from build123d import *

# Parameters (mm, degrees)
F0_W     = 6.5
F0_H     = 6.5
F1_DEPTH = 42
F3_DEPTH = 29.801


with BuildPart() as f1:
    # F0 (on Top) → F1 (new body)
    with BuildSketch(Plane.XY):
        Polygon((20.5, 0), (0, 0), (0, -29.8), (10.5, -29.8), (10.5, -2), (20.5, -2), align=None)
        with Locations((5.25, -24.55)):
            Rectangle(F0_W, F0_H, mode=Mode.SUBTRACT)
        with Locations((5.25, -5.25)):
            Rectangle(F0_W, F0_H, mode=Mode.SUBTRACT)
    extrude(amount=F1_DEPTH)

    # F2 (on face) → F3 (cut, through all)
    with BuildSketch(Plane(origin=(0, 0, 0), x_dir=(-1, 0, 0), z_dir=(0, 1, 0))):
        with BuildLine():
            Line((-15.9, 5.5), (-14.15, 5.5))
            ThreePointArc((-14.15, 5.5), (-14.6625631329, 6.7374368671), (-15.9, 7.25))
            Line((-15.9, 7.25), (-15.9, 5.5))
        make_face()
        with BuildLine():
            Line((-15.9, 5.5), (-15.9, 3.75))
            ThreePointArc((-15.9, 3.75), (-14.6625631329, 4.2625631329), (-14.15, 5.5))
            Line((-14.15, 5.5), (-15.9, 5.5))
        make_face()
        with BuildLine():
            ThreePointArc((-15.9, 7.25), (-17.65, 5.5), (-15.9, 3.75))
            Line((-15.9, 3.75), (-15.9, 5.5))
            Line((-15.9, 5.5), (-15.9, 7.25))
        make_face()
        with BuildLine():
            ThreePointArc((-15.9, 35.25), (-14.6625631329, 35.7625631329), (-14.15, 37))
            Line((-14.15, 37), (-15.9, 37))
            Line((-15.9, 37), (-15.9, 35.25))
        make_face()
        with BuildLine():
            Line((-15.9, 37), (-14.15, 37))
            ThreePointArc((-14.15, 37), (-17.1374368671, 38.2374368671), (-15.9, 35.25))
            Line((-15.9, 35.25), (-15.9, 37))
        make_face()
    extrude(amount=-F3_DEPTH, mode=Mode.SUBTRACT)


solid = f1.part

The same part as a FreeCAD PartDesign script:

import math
import FreeCAD as App
import Part
import Sketcher
from FreeCAD import Vector


def add_polygon(sketch, points):
    """Adds a closed chain of lines whose ends are joined by coincident constraints."""
    first, n = sketch.GeometryCount, len(points)
    for a, b in zip(points, points[1:] + points[:1]):
        sketch.addGeometry(Part.LineSegment(App.Vector(*a, 0), App.Vector(*b, 0)), False)
    for i in range(n):
        sketch.addConstraint(Sketcher.Constraint("Coincident", first + i, 2, first + (i + 1) % n, 1))

doc = App.newDocument("Part")
body = doc.addObject("PartDesign::Body", "Body")

# Sketch on XY plane
sketch1 = doc.addObject("Sketcher::SketchObject", "Sketch")
body.addObject(sketch1)
sketch1.AttachmentSupport = (doc.XY_Plane, [""])
sketch1.MapMode = "FlatFace"
add_polygon(sketch1, [(20.5, 0), (0, 0), (0, -29.8), (10.5, -29.8), (10.5, -2), (20.5, -2)])  # lines 0-5
add_polygon(sketch1, [(8.5, -27.8), (2, -27.8), (2, -21.3), (8.5, -21.3)])  # lines 6-9
add_polygon(sketch1, [(8.5, -8.5), (2, -8.5), (2, -2), (8.5, -2)])  # lines 10-13
sketch1.addConstraint([
    Sketcher.Constraint("Horizontal", 0),
    Sketcher.Constraint("Vertical", 1),
    Sketcher.Constraint("Horizontal", 2),
    Sketcher.Constraint("Vertical", 3),
    Sketcher.Constraint("Horizontal", 4),
    Sketcher.Constraint("Vertical", 5),
    Sketcher.Constraint("Horizontal", 6),
    Sketcher.Constraint("Vertical", 7),
    Sketcher.Constraint("Horizontal", 8),
    Sketcher.Constraint("Vertical", 9),
    Sketcher.Constraint("Horizontal", 10),
    Sketcher.Constraint("Vertical", 11),
    Sketcher.Constraint("Horizontal", 12),
    Sketcher.Constraint("Vertical", 13),
    Sketcher.Constraint("Coincident", 0, 2, -1, 1),
    Sketcher.Constraint("Horizontal", 4, 2, 11, 2),
    Sketcher.Constraint("Vertical", 7, 2, 10, 2),
    Sketcher.Constraint("Vertical", 9, 2, 12, 2),
    Sketcher.Constraint("Equal", 12, 7),
    Sketcher.Constraint("Equal", 9, 11),
    Sketcher.Constraint("DistanceX", 4, 1, 4, 2, 10.0),
    Sketcher.Constraint("DistanceY", 5, 1, 5, 2, 2.0),
    Sketcher.Constraint("DistanceX", 0, 2, 0, 1, 20.5),
    Sketcher.Constraint("DistanceX", 6, 2, 6, 1, 6.5),
    Sketcher.Constraint("DistanceY", 1, 2, 1, 1, 29.8),
    Sketcher.Constraint("DistanceX", -1, 1, 6, 2, 2.0),
    Sketcher.Constraint("DistanceY", 1, 2, 6, 2, 2.0),
])
pad1 = doc.addObject("PartDesign::Pad", "Pad")
body.addObject(pad1)
pad1.Profile = sketch1
pad1.Length = 42

# Sketch on XZ plane
sketch2 = doc.addObject("Sketcher::SketchObject", "Sketch001")
body.addObject(sketch2)
sketch2.AttachmentSupport = (doc.XZ_Plane, [""])
sketch2.MapMode = "FlatFace"
sketch2.addGeometry([
    Part.ArcOfCircle(Part.Circle(Vector(15.9, 5.5, 0), Vector(0, 0, 1), 1.8), math.radians(90), math.radians(180)),  # 0
    Part.ArcOfCircle(Part.Circle(Vector(15.9, 5.5, 0), Vector(0, 0, 1), 1.8), math.radians(-90), math.radians(90)),  # 1
    Part.ArcOfCircle(Part.Circle(Vector(15.9, 5.5, 0), Vector(0, 0, 1), 1.8), math.radians(180), math.radians(270)),  # 2
    Part.ArcOfCircle(Part.Circle(Vector(15.9, 37, 0), Vector(0, 0, 1), 1.8), math.radians(180), math.radians(270)),  # 3
    Part.ArcOfCircle(Part.Circle(Vector(15.9, 37, 0), Vector(0, 0, 1), 1.8), math.radians(-90), math.radians(180)),  # 4
], False)
sketch2.addConstraint([
    Sketcher.Constraint("Tangent", 0, 1, 1, 2),
    Sketcher.Constraint("Tangent", 1, 1, 2, 2),
    Sketcher.Constraint("Tangent", 2, 1, 0, 2),
    Sketcher.Constraint("Tangent", 3, 1, 4, 2),
    Sketcher.Constraint("Coincident", 4, 1, 3, 2),
    Sketcher.Constraint("Equal", 2, 3),
    Sketcher.Constraint("Horizontal", 1, 3, 2, 1),
    Sketcher.Constraint("Horizontal", 4, 3, 3, 1),
    Sketcher.Constraint("Vertical", 2, 3, 3, 3),
    Sketcher.Constraint("Vertical", 4, 3, 0, 1),
    Sketcher.Constraint("Vertical", 0, 1, 1, 1),
    Sketcher.Constraint("Vertical", 1, 1, 4, 1),
    Sketcher.Constraint("Radius", 0, 1.75),
    Sketcher.Constraint("DistanceY", -1, 1, 3, 3, 37.0),
    Sketcher.Constraint("DistanceY", 0, 1, 4, 1, 28.0),
    Sketcher.Constraint("DistanceX", -1, 1, 0, 3, 15.9),
])
pocket1 = doc.addObject("PartDesign::Pocket", "Pocket")
body.addObject(pocket1)
pocket1.Profile = sketch2
pocket1.Type = "ThroughAll"
pocket1.Reversed = True

doc.recompute()
